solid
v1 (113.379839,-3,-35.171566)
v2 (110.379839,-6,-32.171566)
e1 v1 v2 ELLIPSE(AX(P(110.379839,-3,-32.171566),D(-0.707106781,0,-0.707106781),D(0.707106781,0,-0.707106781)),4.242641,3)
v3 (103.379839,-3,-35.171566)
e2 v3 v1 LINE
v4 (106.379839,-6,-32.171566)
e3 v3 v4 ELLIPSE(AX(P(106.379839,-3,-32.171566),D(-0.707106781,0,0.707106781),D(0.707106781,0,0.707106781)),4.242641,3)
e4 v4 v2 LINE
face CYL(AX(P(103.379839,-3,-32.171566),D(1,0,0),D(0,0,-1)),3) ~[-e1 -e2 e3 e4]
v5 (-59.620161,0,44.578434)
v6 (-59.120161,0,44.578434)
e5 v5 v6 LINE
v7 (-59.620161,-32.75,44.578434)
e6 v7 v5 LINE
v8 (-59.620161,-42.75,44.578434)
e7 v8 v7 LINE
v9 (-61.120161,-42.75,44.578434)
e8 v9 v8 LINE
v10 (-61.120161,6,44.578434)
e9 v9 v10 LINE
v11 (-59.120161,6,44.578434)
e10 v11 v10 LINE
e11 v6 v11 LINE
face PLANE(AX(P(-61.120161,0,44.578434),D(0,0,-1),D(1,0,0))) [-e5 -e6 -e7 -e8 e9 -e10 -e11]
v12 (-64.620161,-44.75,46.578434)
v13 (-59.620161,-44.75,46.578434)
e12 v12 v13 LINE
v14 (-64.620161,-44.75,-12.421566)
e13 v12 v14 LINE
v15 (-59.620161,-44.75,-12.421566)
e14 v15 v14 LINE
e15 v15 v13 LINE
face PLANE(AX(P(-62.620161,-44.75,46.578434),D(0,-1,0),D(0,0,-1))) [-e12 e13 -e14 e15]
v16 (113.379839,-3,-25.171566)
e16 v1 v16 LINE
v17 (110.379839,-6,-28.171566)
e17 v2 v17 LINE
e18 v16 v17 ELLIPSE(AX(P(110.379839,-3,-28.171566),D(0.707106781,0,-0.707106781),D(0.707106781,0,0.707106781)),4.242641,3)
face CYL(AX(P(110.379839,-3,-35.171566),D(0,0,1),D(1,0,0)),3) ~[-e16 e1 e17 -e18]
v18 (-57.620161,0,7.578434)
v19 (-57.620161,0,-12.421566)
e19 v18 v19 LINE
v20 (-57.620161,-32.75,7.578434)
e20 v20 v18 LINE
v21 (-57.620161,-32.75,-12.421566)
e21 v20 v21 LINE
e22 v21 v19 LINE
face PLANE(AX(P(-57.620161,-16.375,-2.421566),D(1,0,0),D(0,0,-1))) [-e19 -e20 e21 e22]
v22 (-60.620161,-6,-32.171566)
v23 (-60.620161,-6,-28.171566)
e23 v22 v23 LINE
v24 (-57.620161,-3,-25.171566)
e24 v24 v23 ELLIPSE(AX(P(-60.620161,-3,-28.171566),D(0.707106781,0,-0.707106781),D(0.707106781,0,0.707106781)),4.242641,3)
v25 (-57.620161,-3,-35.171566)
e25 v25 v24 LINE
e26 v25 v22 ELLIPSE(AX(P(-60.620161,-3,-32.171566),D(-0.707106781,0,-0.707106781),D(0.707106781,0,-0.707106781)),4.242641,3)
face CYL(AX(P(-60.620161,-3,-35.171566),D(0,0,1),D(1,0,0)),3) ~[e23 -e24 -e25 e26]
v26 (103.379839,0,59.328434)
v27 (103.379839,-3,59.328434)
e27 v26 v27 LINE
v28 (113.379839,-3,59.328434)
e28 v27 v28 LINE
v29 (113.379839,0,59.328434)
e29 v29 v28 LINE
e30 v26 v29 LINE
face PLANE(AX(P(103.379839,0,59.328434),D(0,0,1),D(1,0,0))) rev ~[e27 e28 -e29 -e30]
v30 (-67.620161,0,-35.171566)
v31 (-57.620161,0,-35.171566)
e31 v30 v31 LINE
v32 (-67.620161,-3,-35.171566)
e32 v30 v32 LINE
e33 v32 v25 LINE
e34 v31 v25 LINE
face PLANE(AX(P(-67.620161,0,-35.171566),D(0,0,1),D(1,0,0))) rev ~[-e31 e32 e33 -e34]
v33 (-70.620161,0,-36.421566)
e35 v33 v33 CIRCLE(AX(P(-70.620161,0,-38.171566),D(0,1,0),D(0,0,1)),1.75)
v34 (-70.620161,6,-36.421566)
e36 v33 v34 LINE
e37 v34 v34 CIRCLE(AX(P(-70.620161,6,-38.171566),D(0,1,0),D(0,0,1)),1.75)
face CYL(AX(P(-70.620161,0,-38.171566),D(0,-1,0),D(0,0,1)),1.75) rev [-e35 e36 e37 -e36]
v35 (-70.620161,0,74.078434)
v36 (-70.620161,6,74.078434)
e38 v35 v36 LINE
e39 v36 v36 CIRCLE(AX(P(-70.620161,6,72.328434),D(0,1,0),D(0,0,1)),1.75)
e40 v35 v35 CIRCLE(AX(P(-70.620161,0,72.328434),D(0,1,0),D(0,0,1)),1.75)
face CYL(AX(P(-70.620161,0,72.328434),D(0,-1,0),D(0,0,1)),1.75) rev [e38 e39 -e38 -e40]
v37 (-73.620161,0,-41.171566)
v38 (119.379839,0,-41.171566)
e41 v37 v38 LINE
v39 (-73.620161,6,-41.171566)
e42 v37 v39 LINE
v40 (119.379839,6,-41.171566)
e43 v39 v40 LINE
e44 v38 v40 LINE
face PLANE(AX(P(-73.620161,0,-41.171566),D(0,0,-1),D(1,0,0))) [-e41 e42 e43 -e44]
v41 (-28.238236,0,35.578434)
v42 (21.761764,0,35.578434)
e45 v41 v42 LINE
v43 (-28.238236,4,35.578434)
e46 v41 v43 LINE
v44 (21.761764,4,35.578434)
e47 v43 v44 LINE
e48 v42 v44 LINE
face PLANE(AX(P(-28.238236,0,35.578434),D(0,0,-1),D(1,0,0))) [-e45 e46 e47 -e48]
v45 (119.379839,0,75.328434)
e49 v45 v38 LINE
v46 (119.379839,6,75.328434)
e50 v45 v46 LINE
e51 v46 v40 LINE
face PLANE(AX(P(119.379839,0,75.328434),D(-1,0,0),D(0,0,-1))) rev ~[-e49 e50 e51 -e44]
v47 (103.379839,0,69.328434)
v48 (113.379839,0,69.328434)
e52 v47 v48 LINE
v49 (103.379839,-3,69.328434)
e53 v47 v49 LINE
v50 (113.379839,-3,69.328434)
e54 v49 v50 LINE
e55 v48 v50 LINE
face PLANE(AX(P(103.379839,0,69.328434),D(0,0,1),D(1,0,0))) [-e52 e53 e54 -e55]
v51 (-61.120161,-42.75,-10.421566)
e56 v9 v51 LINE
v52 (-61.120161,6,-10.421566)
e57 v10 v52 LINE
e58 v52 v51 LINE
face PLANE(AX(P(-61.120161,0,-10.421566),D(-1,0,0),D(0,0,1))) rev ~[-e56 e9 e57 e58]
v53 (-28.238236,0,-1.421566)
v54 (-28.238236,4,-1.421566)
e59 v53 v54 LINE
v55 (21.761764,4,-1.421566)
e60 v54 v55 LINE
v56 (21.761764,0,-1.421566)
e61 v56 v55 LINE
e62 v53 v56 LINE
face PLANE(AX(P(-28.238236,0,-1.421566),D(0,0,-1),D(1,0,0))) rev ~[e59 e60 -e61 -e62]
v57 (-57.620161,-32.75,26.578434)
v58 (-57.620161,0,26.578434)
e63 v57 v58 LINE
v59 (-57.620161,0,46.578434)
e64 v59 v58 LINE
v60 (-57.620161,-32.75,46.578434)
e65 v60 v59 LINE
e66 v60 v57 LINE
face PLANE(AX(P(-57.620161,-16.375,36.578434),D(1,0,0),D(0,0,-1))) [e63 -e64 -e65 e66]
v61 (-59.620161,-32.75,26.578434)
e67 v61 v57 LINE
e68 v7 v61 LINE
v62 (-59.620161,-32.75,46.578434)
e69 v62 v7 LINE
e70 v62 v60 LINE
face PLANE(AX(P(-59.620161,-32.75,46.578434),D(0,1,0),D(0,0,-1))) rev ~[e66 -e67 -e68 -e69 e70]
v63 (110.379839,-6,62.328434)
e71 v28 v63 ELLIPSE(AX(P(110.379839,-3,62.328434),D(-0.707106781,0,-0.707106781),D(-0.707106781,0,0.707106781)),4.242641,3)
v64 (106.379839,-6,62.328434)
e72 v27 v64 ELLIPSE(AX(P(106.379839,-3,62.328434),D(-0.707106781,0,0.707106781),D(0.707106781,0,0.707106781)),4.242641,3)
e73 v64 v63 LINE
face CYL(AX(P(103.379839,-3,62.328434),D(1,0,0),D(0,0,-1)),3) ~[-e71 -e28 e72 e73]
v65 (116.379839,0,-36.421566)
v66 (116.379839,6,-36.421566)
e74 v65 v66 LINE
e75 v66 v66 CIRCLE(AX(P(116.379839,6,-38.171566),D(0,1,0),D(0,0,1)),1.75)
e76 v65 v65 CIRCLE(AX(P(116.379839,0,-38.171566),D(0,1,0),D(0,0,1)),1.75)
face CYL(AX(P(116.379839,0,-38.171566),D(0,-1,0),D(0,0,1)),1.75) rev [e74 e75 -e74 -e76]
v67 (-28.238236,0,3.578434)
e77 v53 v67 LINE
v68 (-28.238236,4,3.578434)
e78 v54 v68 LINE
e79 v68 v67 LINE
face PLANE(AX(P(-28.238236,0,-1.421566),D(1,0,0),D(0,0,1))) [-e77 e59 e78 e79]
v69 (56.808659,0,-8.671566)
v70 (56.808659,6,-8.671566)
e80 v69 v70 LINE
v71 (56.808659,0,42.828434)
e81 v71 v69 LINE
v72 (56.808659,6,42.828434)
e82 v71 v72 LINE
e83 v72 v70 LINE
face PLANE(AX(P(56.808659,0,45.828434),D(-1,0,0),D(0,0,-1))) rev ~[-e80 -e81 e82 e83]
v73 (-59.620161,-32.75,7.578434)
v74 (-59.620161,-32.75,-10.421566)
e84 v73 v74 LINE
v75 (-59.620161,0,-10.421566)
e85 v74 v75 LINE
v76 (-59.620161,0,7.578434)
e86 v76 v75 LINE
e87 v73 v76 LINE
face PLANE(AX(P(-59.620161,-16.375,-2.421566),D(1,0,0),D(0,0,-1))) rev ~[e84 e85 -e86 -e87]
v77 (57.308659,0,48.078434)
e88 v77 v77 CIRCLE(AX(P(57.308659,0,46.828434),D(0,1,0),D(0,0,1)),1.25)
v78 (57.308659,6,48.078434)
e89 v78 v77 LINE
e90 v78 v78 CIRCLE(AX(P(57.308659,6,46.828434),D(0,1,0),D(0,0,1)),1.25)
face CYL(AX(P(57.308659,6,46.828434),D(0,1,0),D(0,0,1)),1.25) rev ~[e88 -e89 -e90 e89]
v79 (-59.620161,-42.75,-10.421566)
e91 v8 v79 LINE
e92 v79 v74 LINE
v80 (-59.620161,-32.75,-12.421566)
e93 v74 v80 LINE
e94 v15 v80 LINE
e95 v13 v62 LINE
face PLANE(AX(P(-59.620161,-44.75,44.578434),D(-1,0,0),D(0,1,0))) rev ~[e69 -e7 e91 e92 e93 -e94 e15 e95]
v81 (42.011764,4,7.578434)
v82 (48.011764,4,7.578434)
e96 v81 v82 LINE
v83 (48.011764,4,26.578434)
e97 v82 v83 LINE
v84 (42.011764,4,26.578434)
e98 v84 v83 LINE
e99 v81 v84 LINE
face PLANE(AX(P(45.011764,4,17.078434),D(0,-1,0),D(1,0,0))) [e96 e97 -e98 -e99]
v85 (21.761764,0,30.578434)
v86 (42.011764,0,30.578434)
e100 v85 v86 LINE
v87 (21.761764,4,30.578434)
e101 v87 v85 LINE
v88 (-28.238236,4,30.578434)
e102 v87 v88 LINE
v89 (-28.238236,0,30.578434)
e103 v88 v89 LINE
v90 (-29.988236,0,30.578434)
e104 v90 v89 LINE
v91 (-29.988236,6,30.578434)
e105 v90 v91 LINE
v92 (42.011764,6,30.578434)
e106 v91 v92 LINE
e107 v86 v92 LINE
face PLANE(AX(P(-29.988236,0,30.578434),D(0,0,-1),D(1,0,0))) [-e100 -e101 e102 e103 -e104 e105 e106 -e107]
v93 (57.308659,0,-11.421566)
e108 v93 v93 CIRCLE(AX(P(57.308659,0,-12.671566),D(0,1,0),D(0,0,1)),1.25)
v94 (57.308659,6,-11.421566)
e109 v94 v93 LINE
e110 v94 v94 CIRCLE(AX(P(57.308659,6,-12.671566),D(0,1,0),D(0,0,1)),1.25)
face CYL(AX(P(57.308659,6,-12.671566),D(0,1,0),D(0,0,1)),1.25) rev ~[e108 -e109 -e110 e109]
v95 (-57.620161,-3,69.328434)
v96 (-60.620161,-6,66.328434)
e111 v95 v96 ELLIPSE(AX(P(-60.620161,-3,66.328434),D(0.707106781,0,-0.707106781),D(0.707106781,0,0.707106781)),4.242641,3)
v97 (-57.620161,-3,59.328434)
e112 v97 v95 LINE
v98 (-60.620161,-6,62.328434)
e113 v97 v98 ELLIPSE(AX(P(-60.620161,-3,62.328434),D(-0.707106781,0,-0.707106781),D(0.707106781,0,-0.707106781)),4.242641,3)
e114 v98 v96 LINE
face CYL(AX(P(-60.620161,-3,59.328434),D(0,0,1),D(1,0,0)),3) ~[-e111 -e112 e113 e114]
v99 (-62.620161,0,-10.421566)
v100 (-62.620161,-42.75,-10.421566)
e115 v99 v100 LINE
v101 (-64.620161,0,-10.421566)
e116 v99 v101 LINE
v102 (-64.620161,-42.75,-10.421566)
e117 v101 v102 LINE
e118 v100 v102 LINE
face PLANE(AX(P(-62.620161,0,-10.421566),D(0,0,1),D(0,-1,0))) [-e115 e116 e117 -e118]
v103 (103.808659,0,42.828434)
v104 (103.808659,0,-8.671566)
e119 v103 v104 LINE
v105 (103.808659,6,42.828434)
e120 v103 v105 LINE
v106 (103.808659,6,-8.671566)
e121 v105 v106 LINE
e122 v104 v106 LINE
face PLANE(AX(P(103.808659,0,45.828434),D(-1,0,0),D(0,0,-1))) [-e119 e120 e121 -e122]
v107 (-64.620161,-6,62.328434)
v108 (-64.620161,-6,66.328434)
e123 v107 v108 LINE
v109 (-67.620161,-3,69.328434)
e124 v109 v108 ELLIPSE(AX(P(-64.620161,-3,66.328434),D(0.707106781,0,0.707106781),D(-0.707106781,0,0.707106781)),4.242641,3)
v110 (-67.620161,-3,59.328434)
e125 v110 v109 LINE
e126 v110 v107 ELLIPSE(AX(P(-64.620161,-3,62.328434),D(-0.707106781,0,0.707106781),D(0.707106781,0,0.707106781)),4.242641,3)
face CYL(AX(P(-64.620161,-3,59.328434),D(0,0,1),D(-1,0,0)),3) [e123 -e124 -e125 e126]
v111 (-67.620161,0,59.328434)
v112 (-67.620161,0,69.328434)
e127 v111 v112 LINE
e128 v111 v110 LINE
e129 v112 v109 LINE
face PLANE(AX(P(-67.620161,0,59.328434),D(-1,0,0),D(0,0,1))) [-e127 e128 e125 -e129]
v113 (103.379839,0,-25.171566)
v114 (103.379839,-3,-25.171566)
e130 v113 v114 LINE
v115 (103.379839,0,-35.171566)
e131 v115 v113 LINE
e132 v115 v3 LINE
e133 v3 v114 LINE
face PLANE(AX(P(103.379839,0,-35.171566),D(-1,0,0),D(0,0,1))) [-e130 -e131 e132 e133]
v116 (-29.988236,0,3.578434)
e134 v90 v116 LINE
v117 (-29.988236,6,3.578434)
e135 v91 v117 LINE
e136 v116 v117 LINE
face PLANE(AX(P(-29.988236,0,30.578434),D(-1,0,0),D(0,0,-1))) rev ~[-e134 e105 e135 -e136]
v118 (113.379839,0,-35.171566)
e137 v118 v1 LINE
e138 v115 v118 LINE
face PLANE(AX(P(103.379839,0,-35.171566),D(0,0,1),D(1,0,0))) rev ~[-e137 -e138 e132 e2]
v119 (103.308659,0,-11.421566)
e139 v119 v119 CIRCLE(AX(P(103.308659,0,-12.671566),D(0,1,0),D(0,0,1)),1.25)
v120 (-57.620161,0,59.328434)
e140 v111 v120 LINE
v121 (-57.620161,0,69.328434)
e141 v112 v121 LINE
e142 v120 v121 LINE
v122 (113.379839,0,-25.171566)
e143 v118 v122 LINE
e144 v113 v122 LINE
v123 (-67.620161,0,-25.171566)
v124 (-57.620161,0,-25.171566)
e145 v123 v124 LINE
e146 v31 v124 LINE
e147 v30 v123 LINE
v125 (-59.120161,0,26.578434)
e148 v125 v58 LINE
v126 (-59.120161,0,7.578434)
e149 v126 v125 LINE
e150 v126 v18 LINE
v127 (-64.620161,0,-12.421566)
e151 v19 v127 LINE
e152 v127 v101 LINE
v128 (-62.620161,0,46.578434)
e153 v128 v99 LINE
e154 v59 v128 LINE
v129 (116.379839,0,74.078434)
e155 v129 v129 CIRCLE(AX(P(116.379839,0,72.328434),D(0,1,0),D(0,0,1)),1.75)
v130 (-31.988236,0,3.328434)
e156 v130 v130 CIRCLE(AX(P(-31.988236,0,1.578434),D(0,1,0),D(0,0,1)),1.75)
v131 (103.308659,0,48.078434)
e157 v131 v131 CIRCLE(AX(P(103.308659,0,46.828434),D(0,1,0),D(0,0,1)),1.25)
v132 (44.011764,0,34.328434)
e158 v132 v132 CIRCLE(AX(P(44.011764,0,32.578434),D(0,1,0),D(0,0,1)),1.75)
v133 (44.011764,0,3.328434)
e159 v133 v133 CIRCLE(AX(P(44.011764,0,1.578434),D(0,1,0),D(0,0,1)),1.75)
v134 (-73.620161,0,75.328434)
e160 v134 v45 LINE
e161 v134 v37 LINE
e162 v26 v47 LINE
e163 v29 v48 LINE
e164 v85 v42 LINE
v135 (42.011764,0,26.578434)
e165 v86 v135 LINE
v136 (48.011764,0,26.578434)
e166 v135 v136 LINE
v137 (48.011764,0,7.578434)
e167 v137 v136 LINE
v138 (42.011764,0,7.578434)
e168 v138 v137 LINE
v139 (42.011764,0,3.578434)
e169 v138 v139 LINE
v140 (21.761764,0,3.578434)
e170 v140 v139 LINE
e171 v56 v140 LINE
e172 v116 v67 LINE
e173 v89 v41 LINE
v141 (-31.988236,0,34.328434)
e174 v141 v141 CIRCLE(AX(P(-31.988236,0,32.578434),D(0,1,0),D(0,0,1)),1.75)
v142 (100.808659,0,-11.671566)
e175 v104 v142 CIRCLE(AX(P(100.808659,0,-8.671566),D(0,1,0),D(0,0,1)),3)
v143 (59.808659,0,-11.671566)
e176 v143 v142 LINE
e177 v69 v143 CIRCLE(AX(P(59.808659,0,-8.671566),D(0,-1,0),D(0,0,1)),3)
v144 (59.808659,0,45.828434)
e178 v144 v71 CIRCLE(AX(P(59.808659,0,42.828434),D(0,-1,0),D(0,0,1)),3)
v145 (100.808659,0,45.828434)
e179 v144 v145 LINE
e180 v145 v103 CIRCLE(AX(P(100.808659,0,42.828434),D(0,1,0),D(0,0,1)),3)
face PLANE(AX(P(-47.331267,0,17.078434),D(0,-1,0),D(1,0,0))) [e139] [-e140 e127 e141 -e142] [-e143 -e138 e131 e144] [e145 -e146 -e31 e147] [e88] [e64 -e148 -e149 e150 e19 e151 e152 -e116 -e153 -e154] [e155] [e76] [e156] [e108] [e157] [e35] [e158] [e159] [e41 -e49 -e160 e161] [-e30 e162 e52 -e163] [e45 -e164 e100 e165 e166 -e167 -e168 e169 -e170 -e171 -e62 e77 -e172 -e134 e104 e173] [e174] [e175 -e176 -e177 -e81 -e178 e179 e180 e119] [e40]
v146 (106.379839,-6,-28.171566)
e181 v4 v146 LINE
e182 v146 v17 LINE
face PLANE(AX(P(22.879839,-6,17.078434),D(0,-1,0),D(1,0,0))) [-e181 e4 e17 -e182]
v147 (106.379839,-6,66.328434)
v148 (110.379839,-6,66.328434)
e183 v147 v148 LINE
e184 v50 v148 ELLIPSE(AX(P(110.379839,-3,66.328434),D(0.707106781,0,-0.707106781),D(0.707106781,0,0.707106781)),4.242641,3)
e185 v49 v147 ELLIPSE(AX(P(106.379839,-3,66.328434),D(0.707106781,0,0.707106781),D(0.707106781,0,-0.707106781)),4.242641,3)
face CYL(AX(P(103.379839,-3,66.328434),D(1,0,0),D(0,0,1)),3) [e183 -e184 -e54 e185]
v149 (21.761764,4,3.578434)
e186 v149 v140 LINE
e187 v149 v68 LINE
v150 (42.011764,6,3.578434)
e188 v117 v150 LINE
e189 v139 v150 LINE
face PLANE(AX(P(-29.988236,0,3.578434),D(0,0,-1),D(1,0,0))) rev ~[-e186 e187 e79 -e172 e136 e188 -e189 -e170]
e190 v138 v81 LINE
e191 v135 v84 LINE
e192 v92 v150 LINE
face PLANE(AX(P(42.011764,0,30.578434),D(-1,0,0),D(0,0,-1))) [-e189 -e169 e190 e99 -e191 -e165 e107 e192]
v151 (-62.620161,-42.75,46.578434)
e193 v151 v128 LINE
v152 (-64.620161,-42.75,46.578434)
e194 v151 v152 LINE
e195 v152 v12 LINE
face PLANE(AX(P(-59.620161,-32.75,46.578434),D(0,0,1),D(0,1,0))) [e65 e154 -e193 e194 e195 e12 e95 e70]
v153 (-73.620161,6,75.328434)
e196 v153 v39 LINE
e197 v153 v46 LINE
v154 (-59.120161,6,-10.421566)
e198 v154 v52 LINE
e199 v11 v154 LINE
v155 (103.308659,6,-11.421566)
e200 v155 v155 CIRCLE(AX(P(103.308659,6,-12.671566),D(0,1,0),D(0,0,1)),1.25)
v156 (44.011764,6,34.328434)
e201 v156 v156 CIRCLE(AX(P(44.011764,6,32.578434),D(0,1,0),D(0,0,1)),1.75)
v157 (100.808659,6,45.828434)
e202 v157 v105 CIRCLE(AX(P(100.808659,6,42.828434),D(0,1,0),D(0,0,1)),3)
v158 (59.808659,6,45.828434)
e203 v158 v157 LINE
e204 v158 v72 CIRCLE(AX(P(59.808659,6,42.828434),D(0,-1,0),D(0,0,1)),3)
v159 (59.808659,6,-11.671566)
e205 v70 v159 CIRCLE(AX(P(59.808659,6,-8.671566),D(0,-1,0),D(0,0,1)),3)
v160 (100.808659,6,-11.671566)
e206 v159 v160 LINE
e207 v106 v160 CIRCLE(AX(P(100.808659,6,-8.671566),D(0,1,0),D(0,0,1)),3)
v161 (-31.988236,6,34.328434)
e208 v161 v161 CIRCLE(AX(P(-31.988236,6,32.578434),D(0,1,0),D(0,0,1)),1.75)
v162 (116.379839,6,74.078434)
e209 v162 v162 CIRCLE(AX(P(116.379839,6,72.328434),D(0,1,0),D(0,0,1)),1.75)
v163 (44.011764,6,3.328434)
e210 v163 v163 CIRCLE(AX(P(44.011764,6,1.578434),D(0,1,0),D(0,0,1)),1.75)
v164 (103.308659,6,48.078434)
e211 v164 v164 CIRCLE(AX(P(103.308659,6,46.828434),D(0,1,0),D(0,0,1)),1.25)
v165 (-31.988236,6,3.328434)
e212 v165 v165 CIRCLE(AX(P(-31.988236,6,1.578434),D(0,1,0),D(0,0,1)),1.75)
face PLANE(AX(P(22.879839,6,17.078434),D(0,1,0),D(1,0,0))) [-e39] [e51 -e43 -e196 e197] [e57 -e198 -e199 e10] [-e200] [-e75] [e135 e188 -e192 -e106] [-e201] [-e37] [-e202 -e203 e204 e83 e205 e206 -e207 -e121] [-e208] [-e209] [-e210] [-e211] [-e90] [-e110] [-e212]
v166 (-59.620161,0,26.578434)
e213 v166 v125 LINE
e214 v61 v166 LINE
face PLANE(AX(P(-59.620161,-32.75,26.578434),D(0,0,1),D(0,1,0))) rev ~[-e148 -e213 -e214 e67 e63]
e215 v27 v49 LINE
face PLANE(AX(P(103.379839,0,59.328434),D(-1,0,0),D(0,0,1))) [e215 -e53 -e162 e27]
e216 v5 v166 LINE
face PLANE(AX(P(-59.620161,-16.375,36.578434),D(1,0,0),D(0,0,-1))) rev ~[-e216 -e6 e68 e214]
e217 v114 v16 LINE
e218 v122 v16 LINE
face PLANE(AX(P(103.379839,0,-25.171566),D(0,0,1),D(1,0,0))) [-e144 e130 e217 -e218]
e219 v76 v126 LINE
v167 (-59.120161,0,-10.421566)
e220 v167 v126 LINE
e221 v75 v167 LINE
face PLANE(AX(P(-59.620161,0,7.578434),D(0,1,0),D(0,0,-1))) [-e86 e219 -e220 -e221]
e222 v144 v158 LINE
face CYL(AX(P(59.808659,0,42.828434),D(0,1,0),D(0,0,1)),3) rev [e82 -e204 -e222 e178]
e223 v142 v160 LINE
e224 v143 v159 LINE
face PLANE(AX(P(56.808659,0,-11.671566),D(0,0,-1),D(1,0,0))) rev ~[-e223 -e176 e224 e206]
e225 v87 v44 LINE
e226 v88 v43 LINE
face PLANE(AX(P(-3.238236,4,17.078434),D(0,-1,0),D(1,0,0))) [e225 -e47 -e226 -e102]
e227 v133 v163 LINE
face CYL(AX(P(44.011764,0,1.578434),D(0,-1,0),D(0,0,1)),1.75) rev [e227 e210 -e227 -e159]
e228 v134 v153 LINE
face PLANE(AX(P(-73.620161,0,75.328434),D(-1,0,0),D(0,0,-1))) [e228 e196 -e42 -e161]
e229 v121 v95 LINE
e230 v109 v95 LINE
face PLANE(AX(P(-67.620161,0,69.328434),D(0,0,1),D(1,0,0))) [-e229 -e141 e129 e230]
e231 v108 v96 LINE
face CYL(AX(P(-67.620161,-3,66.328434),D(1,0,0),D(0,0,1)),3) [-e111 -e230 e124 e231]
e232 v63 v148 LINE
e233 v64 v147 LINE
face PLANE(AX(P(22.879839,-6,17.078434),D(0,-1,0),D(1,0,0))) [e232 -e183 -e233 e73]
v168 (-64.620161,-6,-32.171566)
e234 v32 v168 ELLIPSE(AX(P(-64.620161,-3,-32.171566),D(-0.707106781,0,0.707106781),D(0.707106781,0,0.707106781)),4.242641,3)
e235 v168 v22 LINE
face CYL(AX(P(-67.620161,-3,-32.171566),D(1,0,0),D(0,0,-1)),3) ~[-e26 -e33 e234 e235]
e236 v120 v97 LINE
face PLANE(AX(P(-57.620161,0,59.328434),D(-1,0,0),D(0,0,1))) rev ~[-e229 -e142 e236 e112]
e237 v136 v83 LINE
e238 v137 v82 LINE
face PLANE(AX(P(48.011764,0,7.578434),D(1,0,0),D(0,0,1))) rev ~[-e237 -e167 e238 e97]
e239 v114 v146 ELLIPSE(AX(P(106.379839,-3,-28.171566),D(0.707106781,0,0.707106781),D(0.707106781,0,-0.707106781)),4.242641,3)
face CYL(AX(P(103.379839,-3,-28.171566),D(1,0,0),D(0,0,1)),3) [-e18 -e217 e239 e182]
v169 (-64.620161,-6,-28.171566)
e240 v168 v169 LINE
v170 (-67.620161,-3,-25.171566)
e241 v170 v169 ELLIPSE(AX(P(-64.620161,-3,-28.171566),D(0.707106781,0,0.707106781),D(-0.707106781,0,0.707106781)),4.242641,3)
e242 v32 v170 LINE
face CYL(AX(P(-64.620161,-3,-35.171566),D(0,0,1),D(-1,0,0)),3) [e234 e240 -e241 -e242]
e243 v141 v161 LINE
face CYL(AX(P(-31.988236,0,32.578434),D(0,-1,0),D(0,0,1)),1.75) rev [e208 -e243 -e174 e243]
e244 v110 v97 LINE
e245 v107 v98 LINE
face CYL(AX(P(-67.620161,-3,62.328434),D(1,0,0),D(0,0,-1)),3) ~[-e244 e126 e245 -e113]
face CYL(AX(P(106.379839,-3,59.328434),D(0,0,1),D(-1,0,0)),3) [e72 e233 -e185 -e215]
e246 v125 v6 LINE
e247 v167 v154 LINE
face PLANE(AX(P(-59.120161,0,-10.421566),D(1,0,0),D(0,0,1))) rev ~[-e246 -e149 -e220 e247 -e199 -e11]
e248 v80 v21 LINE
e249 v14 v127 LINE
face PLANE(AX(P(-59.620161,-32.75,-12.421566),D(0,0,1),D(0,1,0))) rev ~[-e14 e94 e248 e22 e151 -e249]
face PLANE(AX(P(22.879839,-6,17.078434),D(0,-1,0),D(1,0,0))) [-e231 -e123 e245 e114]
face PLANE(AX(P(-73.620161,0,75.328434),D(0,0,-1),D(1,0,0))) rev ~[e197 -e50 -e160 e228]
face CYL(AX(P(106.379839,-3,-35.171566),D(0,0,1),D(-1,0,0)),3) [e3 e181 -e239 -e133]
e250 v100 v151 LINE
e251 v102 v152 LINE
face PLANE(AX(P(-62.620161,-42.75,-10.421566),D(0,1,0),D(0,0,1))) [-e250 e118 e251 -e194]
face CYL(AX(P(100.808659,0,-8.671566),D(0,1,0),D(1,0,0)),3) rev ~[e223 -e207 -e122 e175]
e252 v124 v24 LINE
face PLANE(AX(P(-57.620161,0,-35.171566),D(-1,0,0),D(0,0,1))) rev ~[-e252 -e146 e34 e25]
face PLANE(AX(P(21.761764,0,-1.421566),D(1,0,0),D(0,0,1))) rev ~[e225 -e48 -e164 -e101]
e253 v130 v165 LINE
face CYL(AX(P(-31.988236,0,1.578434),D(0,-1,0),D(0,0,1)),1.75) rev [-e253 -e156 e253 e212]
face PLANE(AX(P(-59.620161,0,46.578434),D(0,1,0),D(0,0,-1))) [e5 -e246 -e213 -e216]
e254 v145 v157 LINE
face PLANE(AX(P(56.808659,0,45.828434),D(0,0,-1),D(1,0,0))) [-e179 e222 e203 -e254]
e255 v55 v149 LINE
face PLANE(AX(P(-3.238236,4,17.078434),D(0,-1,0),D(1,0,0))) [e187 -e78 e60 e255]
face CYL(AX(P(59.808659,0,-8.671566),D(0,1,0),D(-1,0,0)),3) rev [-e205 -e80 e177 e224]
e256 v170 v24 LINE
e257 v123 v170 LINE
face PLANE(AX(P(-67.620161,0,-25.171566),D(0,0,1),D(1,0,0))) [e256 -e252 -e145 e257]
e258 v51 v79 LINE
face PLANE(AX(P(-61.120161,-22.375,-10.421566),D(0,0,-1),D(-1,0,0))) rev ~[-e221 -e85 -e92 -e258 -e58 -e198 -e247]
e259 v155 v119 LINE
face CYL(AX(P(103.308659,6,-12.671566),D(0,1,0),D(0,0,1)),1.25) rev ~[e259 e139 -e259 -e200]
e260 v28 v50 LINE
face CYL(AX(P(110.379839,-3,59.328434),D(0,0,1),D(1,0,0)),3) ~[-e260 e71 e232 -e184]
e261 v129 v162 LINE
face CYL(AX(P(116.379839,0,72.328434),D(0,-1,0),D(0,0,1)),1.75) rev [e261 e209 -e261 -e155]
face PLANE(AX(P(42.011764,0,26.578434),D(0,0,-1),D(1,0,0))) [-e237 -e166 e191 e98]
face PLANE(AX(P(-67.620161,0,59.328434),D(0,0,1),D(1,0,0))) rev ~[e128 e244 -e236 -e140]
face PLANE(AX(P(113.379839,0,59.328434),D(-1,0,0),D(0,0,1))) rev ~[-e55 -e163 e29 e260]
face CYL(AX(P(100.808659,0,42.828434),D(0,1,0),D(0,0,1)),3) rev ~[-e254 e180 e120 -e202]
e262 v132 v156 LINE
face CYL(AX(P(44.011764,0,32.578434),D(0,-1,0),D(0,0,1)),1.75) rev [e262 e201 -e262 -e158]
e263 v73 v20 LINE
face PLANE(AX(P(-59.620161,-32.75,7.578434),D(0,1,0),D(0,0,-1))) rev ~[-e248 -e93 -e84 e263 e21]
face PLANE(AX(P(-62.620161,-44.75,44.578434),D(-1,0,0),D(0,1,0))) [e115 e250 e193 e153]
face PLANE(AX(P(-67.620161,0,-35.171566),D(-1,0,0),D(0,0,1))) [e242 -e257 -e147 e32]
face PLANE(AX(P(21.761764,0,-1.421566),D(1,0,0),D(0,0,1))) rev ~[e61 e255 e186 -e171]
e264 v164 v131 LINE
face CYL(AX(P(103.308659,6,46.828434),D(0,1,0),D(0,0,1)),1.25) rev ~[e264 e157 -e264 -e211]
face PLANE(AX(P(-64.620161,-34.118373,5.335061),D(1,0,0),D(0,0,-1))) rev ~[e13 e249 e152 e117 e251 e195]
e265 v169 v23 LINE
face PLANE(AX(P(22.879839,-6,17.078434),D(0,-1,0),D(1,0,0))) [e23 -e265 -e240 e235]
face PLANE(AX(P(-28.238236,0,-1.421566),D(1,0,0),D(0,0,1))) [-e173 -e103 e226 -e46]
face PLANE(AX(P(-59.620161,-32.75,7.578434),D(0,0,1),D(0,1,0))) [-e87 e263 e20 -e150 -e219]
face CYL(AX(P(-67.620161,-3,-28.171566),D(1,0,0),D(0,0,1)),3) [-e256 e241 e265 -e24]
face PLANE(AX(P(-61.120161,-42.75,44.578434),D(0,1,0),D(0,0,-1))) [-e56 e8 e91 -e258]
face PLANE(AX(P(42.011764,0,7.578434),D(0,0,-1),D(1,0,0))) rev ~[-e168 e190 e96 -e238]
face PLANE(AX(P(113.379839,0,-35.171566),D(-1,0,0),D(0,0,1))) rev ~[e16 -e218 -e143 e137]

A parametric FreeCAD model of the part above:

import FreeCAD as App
import Part
import Sketcher

V = App.Vector


def edges_at(feature, points):
    """Names of the edges that pass closest to the given points."""
    edges = feature.Shape.Edges
    near = lambda p: min(range(len(edges)), key=lambda i: edges[i].distToShape(Part.Vertex(*p))[0])
    return sorted({f"Edge{near(p) + 1}" for p in points})


def add_polygon(sketch, points):
    """Adds a closed chain of lines whose ends are joined by coincident constraints."""
    first, n = sketch.GeometryCount, len(points)
    for a, b in zip(points, points[1:] + points[:1]):
        sketch.addGeometry(Part.LineSegment(App.Vector(*a, 0), App.Vector(*b, 0)), False)
    for i in range(n):
        sketch.addConstraint(Sketcher.Constraint("Coincident", first + i, 2, first + (i + 1) % n, 1))

doc = App.newDocument("Part")
body = doc.addObject("PartDesign::Body", "Body")

# Sketch on XZ plane
sketch1 = body.newObject("Sketcher::SketchObject", "Sketch")
sketch1.AttachmentSupport = (doc.getObject("XZ_Plane"), [""])
sketch1.MapMode = "FlatFace"
add_polygon(sketch1, [(-73.6, -41.2), (-73.6, 75.3), (119.4, 75.3), (119.4, -41.2)])  # lines 0-3
sketch1.addGeometry(Part.Circle(V(-70.6, 72.3, 0), V(0, 0, 1), 1.8), False)  # 4
sketch1.addGeometry(Part.Circle(V(-32, 32.6, 0), V(0, 0, 1), 1.8), False)  # 5
sketch1.addGeometry(Part.Circle(V(116.4, 72.3, 0), V(0, 0, 1), 1.8), False)  # 6
sketch1.addGeometry(Part.Circle(V(44, 32.6, 0), V(0, 0, 1), 1.8), False)  # 7
add_polygon(sketch1, [(-46.3, 44.6), (-48.3, 44.6), (-48.3, -10.4), (-46.3, -10.4)])  # lines 8-11
sketch1.addGeometry(Part.Circle(V(-32, 1.6, 0), V(0, 0, 1), 1.8), False)  # 12
add_polygon(sketch1, [(42, 30.6), (-30, 30.6), (-30, 3.6), (42, 3.6)])  # lines 13-16
sketch1.addGeometry(Part.Circle(V(-70.6, -38.2, 0), V(0, 0, 1), 1.8), False)  # 17
sketch1.addGeometry(Part.Circle(V(44, 1.6, 0), V(0, 0, 1), 1.8), False)  # 18
add_polygon(sketch1, [(103.8, 45.8), (56.8, 45.8), (56.8, -11.7), (103.8, -11.7)])  # lines 19-22
sketch1.addGeometry(Part.Circle(V(116.4, -38.2, 0), V(0, 0, 1), 1.8), False)  # 23
sketch1.addConstraint([
    Sketcher.Constraint("Vertical", 0),
    Sketcher.Constraint("Horizontal", 1),
    Sketcher.Constraint("Vertical", 2),
    Sketcher.Constraint("Horizontal", 3),
    Sketcher.Constraint("Horizontal", 8),
    Sketcher.Constraint("Vertical", 9),
    Sketcher.Constraint("Horizontal", 10),
    Sketcher.Constraint("Vertical", 11),
    Sketcher.Constraint("Horizontal", 13),
    Sketcher.Constraint("Vertical", 14),
    Sketcher.Constraint("Horizontal", 15),
    Sketcher.Constraint("Vertical", 16),
    Sketcher.Constraint("Horizontal", 19),
    Sketcher.Constraint("Vertical", 20),
    Sketcher.Constraint("Horizontal", 21),
    Sketcher.Constraint("Vertical", 22),
    Sketcher.Constraint("Equal", 4, 5),
    Sketcher.Constraint("Equal", 5, 6),
    Sketcher.Constraint("Equal", 6, 7),
    Sketcher.Constraint("Equal", 7, 12),
    Sketcher.Constraint("Equal", 12, 17),
    Sketcher.Constraint("Equal", 17, 18),
    Sketcher.Constraint("Equal", 18, 23),
    Sketcher.Constraint("Horizontal", 4, 3, 6, 3),
    Sketcher.Constraint("Horizontal", 5, 3, 7, 3),
    Sketcher.Constraint("Horizontal", 12, 3, 18, 3),
    Sketcher.Constraint("Horizontal", 17, 3, 23, 3),
    Sketcher.Constraint("Vertical", 5, 3, 12, 3),
    Sketcher.Constraint("Vertical", 4, 3, 17, 3),
    Sketcher.Constraint("Vertical", 7, 3, 18, 3),
    Sketcher.Constraint("Vertical", 6, 3, 23, 3),
    Sketcher.Constraint("Diameter", 4, 3.5),
    Sketcher.Constraint("DistanceX", 1, 1, 1, 2, 193.0),
    Sketcher.Constraint("DistanceX", 8, 2, 8, 1, 2.0),
    Sketcher.Constraint("DistanceX", 13, 2, 13, 1, 72.0),
    Sketcher.Constraint("DistanceX", 19, 2, 19, 1, 47.0),
    Sketcher.Constraint("DistanceY", 9, 2, 9, 1, 55.0),
    Sketcher.Constraint("DistanceY", 14, 2, 14, 1, 27.0),
    Sketcher.Constraint("DistanceY", 0, 1, 0, 2, 116.5),
    Sketcher.Constraint("DistanceY", 20, 2, 20, 1, 57.5),
    Sketcher.Constraint("DistanceX", 4, 3, 6, 3, 187.0),
    Sketcher.Constraint("DistanceX", 5, 3, 7, 3, 76.0),
    Sketcher.Constraint("DistanceY", 12, 3, 5, 3, 31.0),
    Sketcher.Constraint("DistanceX", 0, 2, 4, 3, 3.0),
    Sketcher.Constraint("DistanceY", 4, 3, 0, 2, 3.0),
    Sketcher.Constraint("DistanceY", 2, 2, 23, 3, 3.0),
    Sketcher.Constraint("DistanceY", 5, 3, 8, 2, 12.0),
    Sketcher.Constraint("DistanceX", 5, 3, 13, 2, 2.0),
    Sketcher.Constraint("DistanceY", 13, 2, 5, 3, 2.0),
    Sketcher.Constraint("DistanceY", 19, 2, 6, 3, 26.5),
    Sketcher.Constraint("DistanceY", 5, 3, 4, 3, 39.75),
    Sketcher.Constraint("DistanceX", 4, 3, -1, 1, 70.620161),
    Sketcher.Constraint("DistanceX", -1, 1, 19, 2, 56.808659),
    Sketcher.Constraint("DistanceX", 8, 2, 5, 3, 16.343031),
    Sketcher.Constraint("DistanceY", -1, 1, 4, 3, 72.328434),
    Sketcher.Constraint("DistanceX", 5, 3, -1, 1, 31.988236),
])
pad1 = body.newObject("PartDesign::Pad", "Pad")
pad1.Profile = sketch1
pad1.Length = 6
pad1.Reversed = True

# Sketch on XZ plane
sketch2 = body.newObject("Sketcher::SketchObject", "Sketch001")
sketch2.AttachmentSupport = (doc.getObject("XZ_Plane"), [""])
sketch2.MapMode = "FlatFace"
add_polygon(sketch2, [(-68, 69), (-68, 59), (-58, 59), (-58, 69)])  # lines 0-3
add_polygon(sketch2, [(-68, -25), (-68, -35), (-58, -35), (-58, -25)])  # lines 4-7
add_polygon(sketch2, [(103, -25), (103, -35), (113, -35), (113, -25)])  # lines 8-11
add_polygon(sketch2, [(103, 69), (103, 59), (113, 59), (113, 69)])  # lines 12-15
sketch2.addConstraint([
    Sketcher.Constraint("Vertical", 0),
    Sketcher.Constraint("Horizontal", 1),
    Sketcher.Constraint("Vertical", 2),
    Sketcher.Constraint("Horizontal", 3),
    Sketcher.Constraint("Vertical", 4),
    Sketcher.Constraint("Horizontal", 5),
    Sketcher.Constraint("Vertical", 6),
    Sketcher.Constraint("Horizontal", 7),
    Sketcher.Constraint("Vertical", 8),
    Sketcher.Constraint("Horizontal", 9),
    Sketcher.Constraint("Vertical", 10),
    Sketcher.Constraint("Horizontal", 11),
    Sketcher.Constraint("Vertical", 12),
    Sketcher.Constraint("Horizontal", 13),
    Sketcher.Constraint("Vertical", 14),
    Sketcher.Constraint("Horizontal", 15),
    Sketcher.Constraint("Horizontal", 5, 2, 8, 2),
    Sketcher.Constraint("Horizontal", 7, 2, 10, 2),
    Sketcher.Constraint("Horizontal", 1, 2, 12, 2),
    Sketcher.Constraint("Horizontal", 3, 2, 14, 2),
    Sketcher.Constraint("Vertical", 3, 2, 4, 2),
    Sketcher.Constraint("Vertical", 2, 2, 5, 2),
    Sketcher.Constraint("Vertical", 11, 2, 12, 2),
    Sketcher.Constraint("Vertical", 10, 2, 13, 2),
    Sketcher.Constraint("Equal", 7, 9),
    Sketcher.Constraint("Equal", 15, 0),
    Sketcher.Constraint("Equal", 2, 4),
    Sketcher.Constraint("DistanceX", 1, 1, 1, 2, 10.0),
    Sketcher.Constraint("DistanceX", 5, 2, 8, 2, 161.0),
    Sketcher.Constraint("DistanceY", 4, 2, 0, 2, 94.5),
    Sketcher.Constraint("DistanceX", 0, 2, -1, 1, 67.620161),
    Sketcher.Constraint("DistanceY", -1, 1, 0, 2, 59.328434),
])
pad2 = body.newObject("PartDesign::Pad", "Pad001")
pad2.Profile = sketch2
pad2.Length = 10
doc.recompute()

fillet = body.newObject("PartDesign::Fillet", "Fillet")
fillet.Base = (pad2, edges_at(pad2, [
    (56.809, 3, -11.672),
    (56.809, 3, 45.828),
    (103.809, 3, 45.828),
    (103.809, 3, -11.672),
]))
fillet.Radius = 3

# Sketch on XZ plane
sketch3 = body.newObject("Sketcher::SketchObject", "Sketch002")
sketch3.AttachmentSupport = (doc.getObject("XZ_Plane"), [""])
sketch3.MapMode = "FlatFace"
add_polygon(sketch3, [(-48.3, 44.6), (-48.3, -10.4), (-46.3, -10.4), (-46.3, 44.6)])  # lines 0-3
sketch3.addConstraint([
    Sketcher.Constraint("Vertical", 0),
    Sketcher.Constraint("Horizontal", 1),
    Sketcher.Constraint("Vertical", 2),
    Sketcher.Constraint("Horizontal", 3),
    Sketcher.Constraint("DistanceX", 1, 1, 1, 2, 2.0),
    Sketcher.Constraint("DistanceY", 0, 2, 0, 1, 55.0),
    Sketcher.Constraint("DistanceX", 0, 2, -1, 1, 48.331267),
    Sketcher.Constraint("DistanceY", 0, 2, -1, 1, 10.421566),
])
pad3 = body.newObject("PartDesign::Pad", "Pad002")
pad3.Profile = sketch3
pad3.Length = 6
pad3.Reversed = True

# Sketch on XZ plane
sketch4 = body.newObject("Sketcher::SketchObject", "Sketch003")
sketch4.AttachmentSupport = (doc.getObject("XZ_Plane"), [""])
sketch4.MapMode = "FlatFace"
sketch4.AttachmentOffset = App.Placement(V(0, 0, 10), App.Rotation())
add_polygon(sketch4, [(-68, 69), (-68, -35), (113, -35), (113, 69)])  # lines 0-3
sketch4.addConstraint([
    Sketcher.Constraint("Vertical", 0),
    Sketcher.Constraint("Horizontal", 1),
    Sketcher.Constraint("Vertical", 2),
    Sketcher.Constraint("Horizontal", 3),
    Sketcher.Constraint("DistanceX", 1, 1, 1, 2, 181.0),
    Sketcher.Constraint("DistanceY", 0, 2, 0, 1, 104.5),
    Sketcher.Constraint("DistanceX", 0, 2, -1, 1, 67.620161),
    Sketcher.Constraint("DistanceY", 0, 2, -1, 1, 35.171566),
])
pocket1 = body.newObject("PartDesign::Pocket", "Pocket")
pocket1.Profile = sketch4
pocket1.Length = 4

# Sketch on XZ plane
sketch5 = body.newObject("Sketcher::SketchObject", "Sketch004")
sketch5.AttachmentSupport = (doc.getObject("XZ_Plane"), [""])
sketch5.MapMode = "FlatFace"
add_polygon(sketch5, [(-62.6, 44.6), (-62.6, -10.4), (-61.1, -10.4), (-61.1, 44.6)])  # lines 0-3
sketch5.addConstraint([
    Sketcher.Constraint("Vertical", 0),
    Sketcher.Constraint("Horizontal", 1),
    Sketcher.Constraint("Vertical", 2),
    Sketcher.Constraint("Horizontal", 3),
    Sketcher.Constraint("DistanceY", 0, 2, 0, 1, 55.0),
    Sketcher.Constraint("DistanceX", 1, 1, 1, 2, 1.5),
    Sketcher.Constraint("DistanceX", 0, 2, -1, 1, 62.620161),
    Sketcher.Constraint("DistanceY", 0, 2, -1, 1, 10.421566),
])
pad4 = body.newObject("PartDesign::Pad", "Pad003")
pad4.Profile = sketch5
pad4.Length = 44.75

# Sketch on XZ plane
sketch6 = body.newObject("Sketcher::SketchObject", "Sketch005")
sketch6.AttachmentSupport = (doc.getObject("XZ_Plane"), [""])
sketch6.MapMode = "FlatFace"
add_polygon(sketch6, [(-61.1, 44.6), (-61.1, -10.4), (-59.1, -10.4), (-59.1, 44.6)])  # lines 0-3
sketch6.addConstraint([
    Sketcher.Constraint("Vertical", 0),
    Sketcher.Constraint("Horizontal", 1),
    Sketcher.Constraint("Vertical", 2),
    Sketcher.Constraint("Horizontal", 3),
    Sketcher.Constraint("DistanceX", 1, 1, 1, 2, 2.0),
    Sketcher.Constraint("DistanceY", 0, 2, 0, 1, 55.0),
    Sketcher.Constraint("DistanceX", 0, 2, -1, 1, 61.120161),
    Sketcher.Constraint("DistanceY", 0, 2, -1, 1, 10.421566),
])
pocket2 = body.newObject("PartDesign::Pocket", "Pocket001")
pocket2.Profile = sketch6
pocket2.Length = 42.25

# Sketch on XZ plane
sketch7 = body.newObject("Sketcher::SketchObject", "Sketch006")
sketch7.AttachmentSupport = (doc.getObject("XZ_Plane"), [""])
sketch7.MapMode = "FlatFace"
add_polygon(sketch7, [(42, 27), (42, 8), (48, 8), (48, 27)])  # lines 0-3
sketch7.addConstraint([
    Sketcher.Constraint("Vertical", 0),
    Sketcher.Constraint("Horizontal", 1),
    Sketcher.Constraint("Vertical", 2),
    Sketcher.Constraint("Horizontal", 3),
    Sketcher.Constraint("DistanceX", 1, 1, 1, 2, 6.0),
    Sketcher.Constraint("DistanceY", 0, 2, 0, 1, 19.0),
    Sketcher.Constraint("DistanceX", -1, 1, 0, 2, 42.011764),
    Sketcher.Constraint("DistanceY", -1, 1, 0, 2, 7.578434),
])
pocket3 = body.newObject("PartDesign::Pocket", "Pocket002")
pocket3.Profile = sketch7
pocket3.Length = 4
doc.recompute()

fillet2 = body.newObject("PartDesign::Fillet", "Fillet001")
fillet2.Base = (pocket3, edges_at(pocket3, [
    (-67.62, -6, 64.328),
    (-67.62, -6, -30.172),
    (-62.62, -6, -35.172),
    (108.38, -6, -35.172),
    (-62.62, -6, 69.328),
    (108.38, -6, 69.328),
    (113.38, -6, -30.172),
    (113.38, -6, 64.328),
    (-62.62, -6, 59.328),
    (-57.62, -6, 64.328),
    (103.38, -6, 64.328),
    (108.38, -6, 59.328),
    (108.38, -6, -25.172),
    (103.38, -6, -30.172),
    (-57.62, -6, -30.172),
    (-62.62, -6, -25.172),
]))
fillet2.Radius = 3

# Sketch on YZ plane
sketch8 = body.newObject("Sketcher::SketchObject", "Sketch007")
sketch8.AttachmentSupport = (doc.getObject("YZ_Plane"), [""])
sketch8.MapMode = "FlatFace"
sketch8.AttachmentOffset = App.Placement(V(0, 0, -61.120161), App.Rotation())
add_polygon(sketch8, [(-42.8, 44.6), (-44.8, 44.6), (-44.8, -10.4), (-42.8, -10.4)])  # lines 0-3
sketch8.addConstraint([
    Sketcher.Constraint("Horizontal", 0),
    Sketcher.Constraint("Vertical", 1),
    Sketcher.Constraint("Horizontal", 2),
    Sketcher.Constraint("Vertical", 3),
    Sketcher.Constraint("DistanceX", 0, 2, 0, 1, 2.0),
    Sketcher.Constraint("DistanceY", 1, 2, 1, 1, 55.0),
    Sketcher.Constraint("DistanceX", 0, 2, -1, 1, 44.75),
    Sketcher.Constraint("DistanceY", -1, 1, 0, 2, 44.578434),
])
pad5 = body.newObject("PartDesign::Pad", "Pad004")
pad5.Profile = sketch8
pad5.Length = 1.5

# Sketch on XY plane
sketch9 = body.newObject("Sketcher::SketchObject", "Sketch008")
sketch9.AttachmentSupport = (doc.getObject("XY_Plane"), [""])
sketch9.MapMode = "FlatFace"
sketch9.AttachmentOffset = App.Placement(V(0, 0, -10.421566), App.Rotation())
add_polygon(sketch9, [(-59.6, 0), (-59.6, -44.8), (-62.6, -44.8), (-62.6, 0)])  # lines 0-3
sketch9.addConstraint([
    Sketcher.Constraint("Vertical", 0),
    Sketcher.Constraint("Horizontal", 1),
    Sketcher.Constraint("Vertical", 2),
    Sketcher.Constraint("Horizontal", 3),
    Sketcher.Constraint("PointOnObject", 2, 2, -1),
    Sketcher.Constraint("DistanceX", 1, 2, 1, 1, 3.0),
    Sketcher.Constraint("DistanceY", 0, 2, 0, 1, 44.75),
    Sketcher.Constraint("DistanceX", 0, 2, -1, 1, 59.620161),
])
pad6 = body.newObject("PartDesign::Pad", "Pad005")
pad6.Profile = sketch9
pad6.Length = 2
pad6.Reversed = True

# Sketch on XY plane
sketch10 = body.newObject("Sketcher::SketchObject", "Sketch009")
sketch10.AttachmentSupport = (doc.getObject("XY_Plane"), [""])
sketch10.MapMode = "FlatFace"
sketch10.AttachmentOffset = App.Placement(V(0, 0, 44.578434), App.Rotation())
add_polygon(sketch10, [(-62.6, 0), (-62.6, -44.8), (-59.6, -44.8), (-59.6, 0)])  # lines 0-3
sketch10.addConstraint([
    Sketcher.Constraint("Vertical", 0),
    Sketcher.Constraint("Horizontal", 1),
    Sketcher.Constraint("Vertical", 2),
    Sketcher.Constraint("Horizontal", 3),
    Sketcher.Constraint("PointOnObject", 2, 2, -1),
    Sketcher.Constraint("DistanceX", 1, 1, 1, 2, 3.0),
    Sketcher.Constraint("DistanceY", 0, 2, 0, 1, 44.75),
    Sketcher.Constraint("DistanceX", 0, 2, -1, 1, 62.620161),
])
pad7 = body.newObject("PartDesign::Pad", "Pad006")
pad7.Profile = sketch10
pad7.Length = 2

# Sketch on YZ plane
sketch11 = body.newObject("Sketcher::SketchObject", "Sketch010")
sketch11.AttachmentSupport = (doc.getObject("YZ_Plane"), [""])
sketch11.MapMode = "FlatFace"
sketch11.AttachmentOffset = App.Placement(V(0, 0, -62.620161), App.Rotation())
add_polygon(sketch11, [(-42.8, -10.4), (0, -10.4), (0, -12.4), (-44.8, -12.4), (-44.8, 46.6), (-42.8, 46.6)])  # lines 0-5
sketch11.addConstraint([
    Sketcher.Constraint("Horizontal", 0),
    Sketcher.Constraint("Vertical", 1),
    Sketcher.Constraint("Horizontal", 2),
    Sketcher.Constraint("Vertical", 3),
    Sketcher.Constraint("Horizontal", 4),
    Sketcher.Constraint("Vertical", 5),
    Sketcher.Constraint("PointOnObject", 0, 2, -2),
    Sketcher.Constraint("Equal", 4, 1),
    Sketcher.Constraint("DistanceX", 4, 1, 4, 2, 2.0),
    Sketcher.Constraint("DistanceY", 3, 1, 3, 2, 59.0),
    Sketcher.Constraint("DistanceX", 0, 1, 0, 2, 42.75),
    Sketcher.Constraint("DistanceY", 0, 2, -1, 1, 10.421566),
])
pad8 = body.newObject("PartDesign::Pad", "Pad007")
pad8.Profile = sketch11
pad8.Length = 2
pad8.Reversed = True

# Sketch on XZ plane
sketch12 = body.newObject("Sketcher::SketchObject", "Sketch011")
sketch12.AttachmentSupport = (doc.getObject("XZ_Plane"), [""])
sketch12.MapMode = "FlatFace"
sketch12.AttachmentOffset = App.Placement(V(0, 0, -6), App.Rotation())
sketch12.addGeometry([
    Part.Circle(V(57.3, -12.7, 0), V(0, 0, 1), 1.2),
    Part.Circle(V(103.3, -12.7, 0), V(0, 0, 1), 1.2),
    Part.Circle(V(57.3, 46.8, 0), V(0, 0, 1), 1.2),
    Part.Circle(V(103.3, 46.8, 0), V(0, 0, 1), 1.2),
], False)
sketch12.addConstraint([
    Sketcher.Constraint("Equal", 0, 1),
    Sketcher.Constraint("Equal", 1, 2),
    Sketcher.Constraint("Equal", 2, 3),
    Sketcher.Constraint("Horizontal", 0, 3, 1, 3),
    Sketcher.Constraint("Horizontal", 2, 3, 3, 3),
    Sketcher.Constraint("Vertical", 0, 3, 2, 3),
    Sketcher.Constraint("Vertical", 1, 3, 3, 3),
    Sketcher.Constraint("Diameter", 0, 2.5),
    Sketcher.Constraint("DistanceX", 0, 3, 1, 3, 46.0),
    Sketcher.Constraint("DistanceY", 0, 3, 2, 3, 59.5),
    Sketcher.Constraint("DistanceX", -1, 1, 0, 3, 57.308659),
    Sketcher.Constraint("DistanceY", 0, 3, -1, 1, 12.671566),
])
pocket4 = body.newObject("PartDesign::Pocket", "Pocket003")
pocket4.Profile = sketch12
pocket4.Length = 6
pocket4.Reversed = True

# Sketch on YZ plane
sketch13 = body.newObject("Sketcher::SketchObject", "Sketch012")
sketch13.AttachmentSupport = (doc.getObject("YZ_Plane"), [""])
sketch13.MapMode = "FlatFace"
sketch13.AttachmentOffset = App.Placement(V(0, 0, -59.620161), App.Rotation())
add_polygon(sketch13, [(0, 47), (-33, 47), (-33, 27), (0, 27)])  # lines 0-3
add_polygon(sketch13, [(0, 8), (-33, 8), (-33, -12), (0, -12)])  # lines 4-7
sketch13.addConstraint([
    Sketcher.Constraint("Horizontal", 0),
    Sketcher.Constraint("Vertical", 1),
    Sketcher.Constraint("Horizontal", 2),
    Sketcher.Constraint("Vertical", 3),
    Sketcher.Constraint("Horizontal", 4),
    Sketcher.Constraint("Vertical", 5),
    Sketcher.Constraint("Horizontal", 6),
    Sketcher.Constraint("Vertical", 7),
    Sketcher.Constraint("PointOnObject", 2, 2, -2),
    Sketcher.Constraint("PointOnObject", 6, 2, -2),
    Sketcher.Constraint("Vertical", 1, 2, 4, 2),
    Sketcher.Constraint("Equal", 3, 5),
    Sketcher.Constraint("DistanceY", 1, 2, 1, 1, 20.0),
    Sketcher.Constraint("DistanceY", 4, 2, 1, 2, 19.0),
    Sketcher.Constraint("DistanceX", 0, 2, 0, 1, 32.75),
    Sketcher.Constraint("DistanceY", -1, 1, 0, 2, 46.578434),
])
pad9 = body.newObject("PartDesign::Pad", "Pad008")
pad9.Profile = sketch13
pad9.Length = 2

# Sketch on XZ plane
sketch14 = body.newObject("Sketcher::SketchObject", "Sketch013")
sketch14.AttachmentSupport = (doc.getObject("XZ_Plane"), [""])
sketch14.MapMode = "FlatFace"
add_polygon(sketch14, [(-28, 36), (-28, -1), (22, -1), (22, 36)])  # lines 0-3
sketch14.addConstraint([
    Sketcher.Constraint("Vertical", 0),
    Sketcher.Constraint("Horizontal", 1),
    Sketcher.Constraint("Vertical", 2),
    Sketcher.Constraint("Horizontal", 3),
    Sketcher.Constraint("DistanceX", 1, 1, 1, 2, 50.0),
    Sketcher.Constraint("DistanceY", 0, 2, 0, 1, 37.0),
    Sketcher.Constraint("DistanceX", 0, 2, -1, 1, 28.238236),
    Sketcher.Constraint("DistanceY", 0, 2, -1, 1, 1.421566),
])
pocket5 = body.newObject("PartDesign::Pocket", "Pocket004")
pocket5.Profile = sketch14
pocket5.Length = 4

doc.recompute()
